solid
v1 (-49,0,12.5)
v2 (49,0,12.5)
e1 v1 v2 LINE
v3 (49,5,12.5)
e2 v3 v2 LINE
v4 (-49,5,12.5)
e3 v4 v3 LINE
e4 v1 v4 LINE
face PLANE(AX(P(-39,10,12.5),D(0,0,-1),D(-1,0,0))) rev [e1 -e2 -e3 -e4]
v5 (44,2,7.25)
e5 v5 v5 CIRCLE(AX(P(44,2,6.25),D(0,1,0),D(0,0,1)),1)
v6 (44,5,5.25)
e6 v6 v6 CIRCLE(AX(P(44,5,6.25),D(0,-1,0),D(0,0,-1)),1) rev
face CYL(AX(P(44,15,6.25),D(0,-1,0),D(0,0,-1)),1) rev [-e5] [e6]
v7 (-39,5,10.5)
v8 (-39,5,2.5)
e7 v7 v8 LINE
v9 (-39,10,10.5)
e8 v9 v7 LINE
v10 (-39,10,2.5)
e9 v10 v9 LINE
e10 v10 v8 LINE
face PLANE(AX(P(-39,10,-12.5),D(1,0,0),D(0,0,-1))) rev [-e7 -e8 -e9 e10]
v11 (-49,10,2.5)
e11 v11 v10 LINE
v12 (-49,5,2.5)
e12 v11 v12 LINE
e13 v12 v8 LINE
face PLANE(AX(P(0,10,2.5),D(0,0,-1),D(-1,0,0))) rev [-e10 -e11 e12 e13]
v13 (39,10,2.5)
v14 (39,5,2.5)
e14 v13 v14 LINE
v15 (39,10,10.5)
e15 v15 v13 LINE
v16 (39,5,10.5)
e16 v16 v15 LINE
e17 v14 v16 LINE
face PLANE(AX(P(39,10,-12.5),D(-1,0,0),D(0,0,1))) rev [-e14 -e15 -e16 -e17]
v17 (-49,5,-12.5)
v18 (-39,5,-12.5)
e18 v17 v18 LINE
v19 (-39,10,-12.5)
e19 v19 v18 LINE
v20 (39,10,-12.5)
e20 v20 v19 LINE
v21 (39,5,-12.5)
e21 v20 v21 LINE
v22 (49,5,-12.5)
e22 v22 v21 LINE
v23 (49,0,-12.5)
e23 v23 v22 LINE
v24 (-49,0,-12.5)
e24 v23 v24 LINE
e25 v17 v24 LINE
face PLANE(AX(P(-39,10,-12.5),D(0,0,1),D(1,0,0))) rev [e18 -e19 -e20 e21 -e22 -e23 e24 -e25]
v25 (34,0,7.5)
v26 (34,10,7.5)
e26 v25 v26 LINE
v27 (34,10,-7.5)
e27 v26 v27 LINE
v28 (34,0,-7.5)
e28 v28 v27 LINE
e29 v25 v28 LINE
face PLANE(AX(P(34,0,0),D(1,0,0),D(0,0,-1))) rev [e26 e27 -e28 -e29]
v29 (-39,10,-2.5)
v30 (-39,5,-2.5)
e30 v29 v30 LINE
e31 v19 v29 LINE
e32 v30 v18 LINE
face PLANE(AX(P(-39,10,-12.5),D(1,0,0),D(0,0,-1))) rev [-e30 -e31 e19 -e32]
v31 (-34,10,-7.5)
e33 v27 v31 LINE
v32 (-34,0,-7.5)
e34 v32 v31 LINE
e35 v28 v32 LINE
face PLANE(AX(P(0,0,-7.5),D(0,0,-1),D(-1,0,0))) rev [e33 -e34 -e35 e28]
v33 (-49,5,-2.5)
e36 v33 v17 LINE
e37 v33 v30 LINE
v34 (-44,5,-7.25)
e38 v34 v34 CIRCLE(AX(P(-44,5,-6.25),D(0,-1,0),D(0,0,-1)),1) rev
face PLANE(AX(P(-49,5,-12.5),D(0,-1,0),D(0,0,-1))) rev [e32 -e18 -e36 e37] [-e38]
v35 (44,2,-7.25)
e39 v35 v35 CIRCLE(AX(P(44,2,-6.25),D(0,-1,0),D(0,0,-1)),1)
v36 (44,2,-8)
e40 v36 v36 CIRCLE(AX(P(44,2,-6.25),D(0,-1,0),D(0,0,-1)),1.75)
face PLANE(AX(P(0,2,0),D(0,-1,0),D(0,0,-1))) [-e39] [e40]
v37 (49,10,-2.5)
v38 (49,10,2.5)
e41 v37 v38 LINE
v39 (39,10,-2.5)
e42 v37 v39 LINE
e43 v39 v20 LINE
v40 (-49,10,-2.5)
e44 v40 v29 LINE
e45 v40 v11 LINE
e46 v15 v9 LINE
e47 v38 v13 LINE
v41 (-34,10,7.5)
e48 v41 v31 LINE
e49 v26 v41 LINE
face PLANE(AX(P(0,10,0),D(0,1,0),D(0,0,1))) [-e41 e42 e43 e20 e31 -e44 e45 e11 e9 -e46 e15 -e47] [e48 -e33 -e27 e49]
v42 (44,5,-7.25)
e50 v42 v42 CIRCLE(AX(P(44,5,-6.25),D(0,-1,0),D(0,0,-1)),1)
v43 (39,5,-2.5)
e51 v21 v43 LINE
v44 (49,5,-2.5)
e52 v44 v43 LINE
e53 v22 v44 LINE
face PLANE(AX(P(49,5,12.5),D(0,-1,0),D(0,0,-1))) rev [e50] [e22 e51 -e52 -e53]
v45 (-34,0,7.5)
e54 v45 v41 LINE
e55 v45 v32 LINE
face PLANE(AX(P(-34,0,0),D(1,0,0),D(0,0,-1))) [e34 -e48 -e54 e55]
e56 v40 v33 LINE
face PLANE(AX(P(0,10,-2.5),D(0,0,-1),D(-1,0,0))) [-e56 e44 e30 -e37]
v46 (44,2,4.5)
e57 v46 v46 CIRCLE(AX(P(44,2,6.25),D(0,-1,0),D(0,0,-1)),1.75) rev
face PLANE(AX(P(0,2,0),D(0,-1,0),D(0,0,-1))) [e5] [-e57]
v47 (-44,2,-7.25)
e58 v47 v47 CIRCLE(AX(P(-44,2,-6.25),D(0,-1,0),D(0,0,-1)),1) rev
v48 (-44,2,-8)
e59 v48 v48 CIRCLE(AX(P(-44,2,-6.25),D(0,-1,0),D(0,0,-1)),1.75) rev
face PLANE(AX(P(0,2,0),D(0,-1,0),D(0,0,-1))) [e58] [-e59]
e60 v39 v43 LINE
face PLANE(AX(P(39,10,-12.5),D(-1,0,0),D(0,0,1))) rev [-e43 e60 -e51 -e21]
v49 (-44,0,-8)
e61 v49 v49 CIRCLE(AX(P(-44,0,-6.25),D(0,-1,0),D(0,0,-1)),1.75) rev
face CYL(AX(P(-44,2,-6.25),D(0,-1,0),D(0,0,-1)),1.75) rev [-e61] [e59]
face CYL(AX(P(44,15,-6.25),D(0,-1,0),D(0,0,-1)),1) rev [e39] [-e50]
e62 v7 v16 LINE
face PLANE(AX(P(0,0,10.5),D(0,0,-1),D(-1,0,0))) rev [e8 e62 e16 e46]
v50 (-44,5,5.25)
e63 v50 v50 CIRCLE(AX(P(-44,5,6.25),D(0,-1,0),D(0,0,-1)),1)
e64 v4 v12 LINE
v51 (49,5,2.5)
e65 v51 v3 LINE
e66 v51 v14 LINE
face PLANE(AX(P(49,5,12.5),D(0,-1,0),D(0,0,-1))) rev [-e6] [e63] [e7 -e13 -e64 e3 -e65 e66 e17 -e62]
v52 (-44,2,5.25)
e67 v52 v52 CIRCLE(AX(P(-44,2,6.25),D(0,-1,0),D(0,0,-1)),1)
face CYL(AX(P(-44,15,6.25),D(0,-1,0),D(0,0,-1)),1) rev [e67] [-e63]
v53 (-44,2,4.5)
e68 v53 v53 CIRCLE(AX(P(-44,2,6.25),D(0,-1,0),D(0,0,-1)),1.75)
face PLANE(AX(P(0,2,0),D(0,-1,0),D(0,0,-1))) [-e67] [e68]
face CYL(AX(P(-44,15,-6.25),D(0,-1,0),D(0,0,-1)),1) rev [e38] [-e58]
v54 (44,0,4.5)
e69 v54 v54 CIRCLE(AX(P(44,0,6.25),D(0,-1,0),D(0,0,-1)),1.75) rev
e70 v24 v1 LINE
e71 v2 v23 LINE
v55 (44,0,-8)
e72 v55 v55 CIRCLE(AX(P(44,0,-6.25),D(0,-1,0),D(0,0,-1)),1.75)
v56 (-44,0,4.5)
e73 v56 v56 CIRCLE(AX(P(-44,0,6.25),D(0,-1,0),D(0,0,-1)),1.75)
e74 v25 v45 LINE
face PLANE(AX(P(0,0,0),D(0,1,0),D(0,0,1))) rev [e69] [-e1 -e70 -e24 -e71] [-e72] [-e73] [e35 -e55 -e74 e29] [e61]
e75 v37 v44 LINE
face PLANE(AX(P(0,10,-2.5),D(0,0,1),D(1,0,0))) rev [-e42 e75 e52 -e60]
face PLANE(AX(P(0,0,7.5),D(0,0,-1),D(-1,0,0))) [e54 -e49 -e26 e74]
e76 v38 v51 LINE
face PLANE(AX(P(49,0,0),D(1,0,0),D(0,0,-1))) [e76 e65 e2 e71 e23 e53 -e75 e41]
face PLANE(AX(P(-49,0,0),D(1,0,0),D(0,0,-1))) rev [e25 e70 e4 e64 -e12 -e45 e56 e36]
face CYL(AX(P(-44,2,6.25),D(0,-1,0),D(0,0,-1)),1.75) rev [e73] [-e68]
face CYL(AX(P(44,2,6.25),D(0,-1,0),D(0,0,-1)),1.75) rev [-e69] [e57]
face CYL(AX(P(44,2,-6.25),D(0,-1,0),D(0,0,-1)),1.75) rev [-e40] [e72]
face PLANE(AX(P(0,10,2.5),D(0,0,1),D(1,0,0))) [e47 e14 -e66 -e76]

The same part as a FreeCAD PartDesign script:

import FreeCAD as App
import Part
import Sketcher
from FreeCAD import Vector


def add_polygon(sketch, points):
    """Adds a closed chain of lines whose ends are joined by coincident constraints."""
    first, n = sketch.GeometryCount, len(points)
    for a, b in zip(points, points[1:] + points[:1]):
        sketch.addGeometry(Part.LineSegment(App.Vector(*a, 0), App.Vector(*b, 0)), False)
    for i in range(n):
        sketch.addConstraint(Sketcher.Constraint("Coincident", first + i, 2, first + (i + 1) % n, 1))

doc = App.newDocument("Part")
body = doc.addObject("PartDesign::Body", "Body")

sketch1 = doc.addObject("Sketcher::SketchObject", "Sketch")
body.addObject(sketch1)
sketch1.AttachmentSupport = (doc.XZ_Plane, [""])
sketch1.MapMode = "FlatFace"
add_polygon(sketch1, [(-39, -12.5), (-39, 12.5), (39, 12.5), (39, -12.5)])
sketch1.addConstraint(Sketcher.Constraint("Vertical", 0))
sketch1.addConstraint(Sketcher.Constraint("Horizontal", 1))
sketch1.addConstraint(Sketcher.Constraint("Vertical", 2))
sketch1.addConstraint(Sketcher.Constraint("Horizontal", 3))
sketch1.addConstraint(Sketcher.Constraint("Symmetric", 0, 2, 2, 2, -1, 1))
sketch1.addConstraint(Sketcher.Constraint("DistanceX", 1, 1, 1, 2, 78.0))
sketch1.addConstraint(Sketcher.Constraint("DistanceY", 0, 1, 0, 2, 25.0))
pad1 = doc.addObject("PartDesign::Pad", "Pad")
body.addObject(pad1)
pad1.Profile = sketch1
pad1.Length = 10
pad1.Reversed = True

sketch2 = doc.addObject("Sketcher::SketchObject", "Sketch001")
body.addObject(sketch2)
sketch2.AttachmentSupport = (doc.XZ_Plane, [""])
sketch2.MapMode = "FlatFace"
sketch2.AttachmentOffset = App.Placement(Vector(0, 0, -10), App.Rotation())
add_polygon(sketch2, [(-34, -7.5), (-34, 7.5), (34, 7.5), (34, -7.5)])
sketch2.addConstraint(Sketcher.Constraint("Vertical", 0))
sketch2.addConstraint(Sketcher.Constraint("Horizontal", 1))
sketch2.addConstraint(Sketcher.Constraint("Vertical", 2))
sketch2.addConstraint(Sketcher.Constraint("Horizontal", 3))
sketch2.addConstraint(Sketcher.Constraint("Symmetric", 0, 2, 2, 2, -1, 1))
sketch2.addConstraint(Sketcher.Constraint("DistanceX", 1, 1, 1, 2, 68.0))
sketch2.addConstraint(Sketcher.Constraint("DistanceY", 0, 1, 0, 2, 15.0))
pocket1 = doc.addObject("PartDesign::Pocket", "Pocket")
body.addObject(pocket1)
pocket1.Profile = sketch2
pocket1.Length = 10
pocket1.Reversed = True

sketch3 = doc.addObject("Sketcher::SketchObject", "Sketch002")
body.addObject(sketch3)
sketch3.AttachmentSupport = (doc.YZ_Plane, [""])
sketch3.MapMode = "FlatFace"
sketch3.AttachmentOffset = App.Placement(Vector(0, 0, -39), App.Rotation())
add_polygon(sketch3, [(5, -12.5), (0, -12.5), (0, 12.5), (5, 12.5)])
sketch3.addConstraint(Sketcher.Constraint("Horizontal", 0))
sketch3.addConstraint(Sketcher.Constraint("Vertical", 1))
sketch3.addConstraint(Sketcher.Constraint("Horizontal", 2))
sketch3.addConstraint(Sketcher.Constraint("Vertical", 3))
sketch3.addConstraint(Sketcher.Constraint("Symmetric", 0, 2, 1, 2, -1, 1))
sketch3.addConstraint(Sketcher.Constraint("DistanceX", 0, 2, 0, 1, 5.0))
sketch3.addConstraint(Sketcher.Constraint("DistanceY", 1, 1, 1, 2, 25.0))
pad2 = doc.addObject("PartDesign::Pad", "Pad001")
body.addObject(pad2)
pad2.Profile = sketch3
pad2.Length = 10
pad2.Reversed = True

sketch4 = doc.addObject("Sketcher::SketchObject", "Sketch003")
body.addObject(sketch4)
sketch4.AttachmentSupport = (doc.YZ_Plane, [""])
sketch4.MapMode = "FlatFace"
sketch4.AttachmentOffset = App.Placement(Vector(0, 0, 39), App.Rotation())
add_polygon(sketch4, [(5, 12.5), (0, 12.5), (0, -12.5), (5, -12.5)])
sketch4.addConstraint(Sketcher.Constraint("Horizontal", 0))
sketch4.addConstraint(Sketcher.Constraint("Vertical", 1))
sketch4.addConstraint(Sketcher.Constraint("Horizontal", 2))
sketch4.addConstraint(Sketcher.Constraint("Vertical", 3))
sketch4.addConstraint(Sketcher.Constraint("Symmetric", 0, 2, 1, 2, -1, 1))
sketch4.addConstraint(Sketcher.Constraint("DistanceX", 0, 2, 0, 1, 5.0))
sketch4.addConstraint(Sketcher.Constraint("DistanceY", 1, 2, 1, 1, 25.0))
pad3 = doc.addObject("PartDesign::Pad", "Pad002")
body.addObject(pad3)
pad3.Profile = sketch4
pad3.Length = 10

sketch5 = doc.addObject("Sketcher::SketchObject", "Sketch004")
body.addObject(sketch5)
sketch5.AttachmentSupport = (doc.XZ_Plane, [""])
sketch5.MapMode = "FlatFace"
sketch5.AttachmentOffset = App.Placement(Vector(0, 0, -5), App.Rotation())
add_polygon(sketch5, [(39, -2.5), (39, 2.5), (49, 2.5), (49, -2.5)])
add_polygon(sketch5, [(-49, -2.5), (-49, 2.5), (-39, 2.5), (-39, -2.5)])
sketch5.addConstraint(Sketcher.Constraint("Vertical", 0))
sketch5.addConstraint(Sketcher.Constraint("Horizontal", 1))
sketch5.addConstraint(Sketcher.Constraint("Vertical", 2))
sketch5.addConstraint(Sketcher.Constraint("Horizontal", 3))
sketch5.addConstraint(Sketcher.Constraint("Vertical", 4))
sketch5.addConstraint(Sketcher.Constraint("Horizontal", 5))
sketch5.addConstraint(Sketcher.Constraint("Vertical", 6))
sketch5.addConstraint(Sketcher.Constraint("Horizontal", 7))
sketch5.addConstraint(Sketcher.Constraint("Symmetric", 2, 2, 4, 2, -1, 1))
sketch5.addConstraint(Sketcher.Constraint("Symmetric", 0, 2, 6, 2, -1, 1))
sketch5.addConstraint(Sketcher.Constraint("Horizontal", 1, 2, 4, 2))
sketch5.addConstraint(Sketcher.Constraint("DistanceX", 1, 1, 1, 2, 10.0))
sketch5.addConstraint(Sketcher.Constraint("DistanceY", 0, 1, 0, 2, 5.0))
sketch5.addConstraint(Sketcher.Constraint("DistanceX", -1, 1, 0, 2, 39.0))
pad4 = doc.addObject("PartDesign::Pad", "Pad003")
body.addObject(pad4)
pad4.Profile = sketch5
pad4.Length = 5
pad4.Reversed = True

sketch6 = doc.addObject("Sketcher::SketchObject", "Sketch005")
body.addObject(sketch6)
sketch6.AttachmentSupport = (doc.XZ_Plane, [""])
sketch6.MapMode = "FlatFace"
sketch6.addGeometry(Part.Circle(Vector(-44, 6.25, 0), Vector(0, 0, 1), 1.75), False)
sketch6.addGeometry(Part.Circle(Vector(-44, -6.25, 0), Vector(0, 0, 1), 1.75), False)
sketch6.addGeometry(Part.Circle(Vector(44, 6.25, 0), Vector(0, 0, 1), 1.75), False)
sketch6.addGeometry(Part.Circle(Vector(44, -6.25, 0), Vector(0, 0, 1), 1.75), False)
sketch6.addConstraint(Sketcher.Constraint("Equal", 0, 1))
sketch6.addConstraint(Sketcher.Constraint("Equal", 1, 2))
sketch6.addConstraint(Sketcher.Constraint("Equal", 2, 3))
sketch6.addConstraint(Sketcher.Constraint("Symmetric", 1, 3, 2, 3, -1, 1))
sketch6.addConstraint(Sketcher.Constraint("Symmetric", 0, 3, 3, 3, -1, 1))
sketch6.addConstraint(Sketcher.Constraint("Symmetric", 0, 3, 2, 3, -2))
sketch6.addConstraint(Sketcher.Constraint("Diameter", 0, 3.5))
sketch6.addConstraint(Sketcher.Constraint("DistanceX", 0, 3, -1, 1, 44.0))
sketch6.addConstraint(Sketcher.Constraint("DistanceY", 1, 3, 0, 3, 12.5))
pocket2 = doc.addObject("PartDesign::Pocket", "Pocket001")
body.addObject(pocket2)
pocket2.Profile = sketch6
pocket2.Length = 2

sketch7 = doc.addObject("Sketcher::SketchObject", "Sketch006")
body.addObject(sketch7)
sketch7.AttachmentSupport = (doc.XZ_Plane, [""])
sketch7.MapMode = "FlatFace"
sketch7.AttachmentOffset = App.Placement(Vector(0, 0, -2), App.Rotation())
sketch7.addGeometry(Part.Circle(Vector(-44, 6.25, 0), Vector(0, 0, 1), 1), False)
sketch7.addGeometry(Part.Circle(Vector(-44, -6.25, 0), Vector(0, 0, 1), 1), False)
sketch7.addGeometry(Part.Circle(Vector(44, 6.25, 0), Vector(0, 0, 1), 1), False)
sketch7.addGeometry(Part.Circle(Vector(44, -6.25, 0), Vector(0, 0, 1), 1), False)
sketch7.addConstraint(Sketcher.Constraint("Equal", 0, 1))
sketch7.addConstraint(Sketcher.Constraint("Equal", 1, 2))
sketch7.addConstraint(Sketcher.Constraint("Equal", 2, 3))
sketch7.addConstraint(Sketcher.Constraint("Symmetric", 1, 3, 2, 3, -1, 1))
sketch7.addConstraint(Sketcher.Constraint("Symmetric", 0, 3, 3, 3, -1, 1))
sketch7.addConstraint(Sketcher.Constraint("Symmetric", 0, 3, 2, 3, -2))
sketch7.addConstraint(Sketcher.Constraint("Diameter", 0, 2.0))
sketch7.addConstraint(Sketcher.Constraint("DistanceX", 0, 3, -1, 1, 44.0))
sketch7.addConstraint(Sketcher.Constraint("DistanceY", 1, 3, 0, 3, 12.5))
pocket3 = doc.addObject("PartDesign::Pocket", "Pocket002")
body.addObject(pocket3)
pocket3.Profile = sketch7
pocket3.Length = 13

sketch8 = doc.addObject("Sketcher::SketchObject", "Sketch007")
body.addObject(sketch8)
sketch8.AttachmentSupport = (doc.XY_Plane, [""])
sketch8.MapMode = "FlatFace"
sketch8.AttachmentOffset = App.Placement(Vector(0, 0, 12.5), App.Rotation())
add_polygon(sketch8, [(-39, 10), (-39, 5), (39, 5), (39, 10)])
sketch8.addConstraint(Sketcher.Constraint("Vertical", 0))
sketch8.addConstraint(Sketcher.Constraint("Horizontal", 1))
sketch8.addConstraint(Sketcher.Constraint("Vertical", 2))
sketch8.addConstraint(Sketcher.Constraint("Horizontal", 3))
sketch8.addConstraint(Sketcher.Constraint("DistanceX", 1, 1, 1, 2, 78.0))
sketch8.addConstraint(Sketcher.Constraint("DistanceY", 0, 2, 0, 1, 5.0))
sketch8.addConstraint(Sketcher.Constraint("DistanceX", 0, 2, -1, 1, 39.0))
sketch8.addConstraint(Sketcher.Constraint("DistanceY", -1, 1, 0, 2, 5.0))
pocket4 = doc.addObject("PartDesign::Pocket", "Pocket003")
body.addObject(pocket4)
pocket4.Profile = sketch8
pocket4.Length = 2

doc.recompute()
